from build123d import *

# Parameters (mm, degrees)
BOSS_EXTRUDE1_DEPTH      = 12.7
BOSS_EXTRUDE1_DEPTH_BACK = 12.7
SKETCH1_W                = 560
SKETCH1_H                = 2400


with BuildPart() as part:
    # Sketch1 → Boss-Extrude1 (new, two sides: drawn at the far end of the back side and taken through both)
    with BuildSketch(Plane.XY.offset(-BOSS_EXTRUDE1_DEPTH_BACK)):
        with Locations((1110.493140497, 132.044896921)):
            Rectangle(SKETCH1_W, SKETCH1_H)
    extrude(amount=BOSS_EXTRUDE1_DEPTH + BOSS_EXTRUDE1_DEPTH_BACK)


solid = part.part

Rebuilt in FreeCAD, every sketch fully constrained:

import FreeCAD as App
import Part
import Sketcher
Q = App.Units.Quantity

doc = App.newDocument("Part")
body = doc.addObject("PartDesign::Body", "Body")

sketch1 = doc.addObject("Sketcher::SketchObject", "Sketch")
body.addObject(sketch1)
sketch1.AttachmentSupport = (doc.XY_Plane, [""])
sketch1.MapMode = "FlatFace"
sketch1.addGeometry([
    Part.LineSegment(App.Vector(830, 1332, 0), App.Vector(830, -1068, 0)),
    Part.LineSegment(App.Vector(830, -1068, 0), App.Vector(1390, -1068, 0)),
    Part.LineSegment(App.Vector(1390, -1068, 0), App.Vector(1390, 1332, 0)),
    Part.LineSegment(App.Vector(1390, 1332, 0), App.Vector(830, 1332, 0)),
], False)
sketch1.addConstraint([
    Sketcher.Constraint("Coincident", 0, 2, 1, 1),
    Sketcher.Constraint("Coincident", 1, 2, 2, 1),
    Sketcher.Constraint("Coincident", 2, 2, 3, 1),
    Sketcher.Constraint("Coincident", 3, 2, 0, 1),
    Sketcher.Constraint("Vertical", 0),
    Sketcher.Constraint("Horizontal", 1),
    Sketcher.Constraint("Vertical", 2),
    Sketcher.Constraint("Horizontal", 3),
    Sketcher.Constraint("DistanceX", 1, 1, 1, 2, Q("560 mm")),
    Sketcher.Constraint("DistanceY", 0, 2, 0, 1, Q("2400 mm")),
    Sketcher.Constraint("DistanceX", -1, 1, 0, 2, Q("830.49314 mm")),
    Sketcher.Constraint("DistanceY", 0, 2, -1, 1, Q("1067.955103 mm")),
])
pad1 = doc.addObject("PartDesign::Pad", "Pad")
body.addObject(pad1)
pad1.Profile = sketch1
pad1.Type = "TwoLengths"
pad1.Length = 12.7
pad1.Length2 = 12.7

doc.recompute()
